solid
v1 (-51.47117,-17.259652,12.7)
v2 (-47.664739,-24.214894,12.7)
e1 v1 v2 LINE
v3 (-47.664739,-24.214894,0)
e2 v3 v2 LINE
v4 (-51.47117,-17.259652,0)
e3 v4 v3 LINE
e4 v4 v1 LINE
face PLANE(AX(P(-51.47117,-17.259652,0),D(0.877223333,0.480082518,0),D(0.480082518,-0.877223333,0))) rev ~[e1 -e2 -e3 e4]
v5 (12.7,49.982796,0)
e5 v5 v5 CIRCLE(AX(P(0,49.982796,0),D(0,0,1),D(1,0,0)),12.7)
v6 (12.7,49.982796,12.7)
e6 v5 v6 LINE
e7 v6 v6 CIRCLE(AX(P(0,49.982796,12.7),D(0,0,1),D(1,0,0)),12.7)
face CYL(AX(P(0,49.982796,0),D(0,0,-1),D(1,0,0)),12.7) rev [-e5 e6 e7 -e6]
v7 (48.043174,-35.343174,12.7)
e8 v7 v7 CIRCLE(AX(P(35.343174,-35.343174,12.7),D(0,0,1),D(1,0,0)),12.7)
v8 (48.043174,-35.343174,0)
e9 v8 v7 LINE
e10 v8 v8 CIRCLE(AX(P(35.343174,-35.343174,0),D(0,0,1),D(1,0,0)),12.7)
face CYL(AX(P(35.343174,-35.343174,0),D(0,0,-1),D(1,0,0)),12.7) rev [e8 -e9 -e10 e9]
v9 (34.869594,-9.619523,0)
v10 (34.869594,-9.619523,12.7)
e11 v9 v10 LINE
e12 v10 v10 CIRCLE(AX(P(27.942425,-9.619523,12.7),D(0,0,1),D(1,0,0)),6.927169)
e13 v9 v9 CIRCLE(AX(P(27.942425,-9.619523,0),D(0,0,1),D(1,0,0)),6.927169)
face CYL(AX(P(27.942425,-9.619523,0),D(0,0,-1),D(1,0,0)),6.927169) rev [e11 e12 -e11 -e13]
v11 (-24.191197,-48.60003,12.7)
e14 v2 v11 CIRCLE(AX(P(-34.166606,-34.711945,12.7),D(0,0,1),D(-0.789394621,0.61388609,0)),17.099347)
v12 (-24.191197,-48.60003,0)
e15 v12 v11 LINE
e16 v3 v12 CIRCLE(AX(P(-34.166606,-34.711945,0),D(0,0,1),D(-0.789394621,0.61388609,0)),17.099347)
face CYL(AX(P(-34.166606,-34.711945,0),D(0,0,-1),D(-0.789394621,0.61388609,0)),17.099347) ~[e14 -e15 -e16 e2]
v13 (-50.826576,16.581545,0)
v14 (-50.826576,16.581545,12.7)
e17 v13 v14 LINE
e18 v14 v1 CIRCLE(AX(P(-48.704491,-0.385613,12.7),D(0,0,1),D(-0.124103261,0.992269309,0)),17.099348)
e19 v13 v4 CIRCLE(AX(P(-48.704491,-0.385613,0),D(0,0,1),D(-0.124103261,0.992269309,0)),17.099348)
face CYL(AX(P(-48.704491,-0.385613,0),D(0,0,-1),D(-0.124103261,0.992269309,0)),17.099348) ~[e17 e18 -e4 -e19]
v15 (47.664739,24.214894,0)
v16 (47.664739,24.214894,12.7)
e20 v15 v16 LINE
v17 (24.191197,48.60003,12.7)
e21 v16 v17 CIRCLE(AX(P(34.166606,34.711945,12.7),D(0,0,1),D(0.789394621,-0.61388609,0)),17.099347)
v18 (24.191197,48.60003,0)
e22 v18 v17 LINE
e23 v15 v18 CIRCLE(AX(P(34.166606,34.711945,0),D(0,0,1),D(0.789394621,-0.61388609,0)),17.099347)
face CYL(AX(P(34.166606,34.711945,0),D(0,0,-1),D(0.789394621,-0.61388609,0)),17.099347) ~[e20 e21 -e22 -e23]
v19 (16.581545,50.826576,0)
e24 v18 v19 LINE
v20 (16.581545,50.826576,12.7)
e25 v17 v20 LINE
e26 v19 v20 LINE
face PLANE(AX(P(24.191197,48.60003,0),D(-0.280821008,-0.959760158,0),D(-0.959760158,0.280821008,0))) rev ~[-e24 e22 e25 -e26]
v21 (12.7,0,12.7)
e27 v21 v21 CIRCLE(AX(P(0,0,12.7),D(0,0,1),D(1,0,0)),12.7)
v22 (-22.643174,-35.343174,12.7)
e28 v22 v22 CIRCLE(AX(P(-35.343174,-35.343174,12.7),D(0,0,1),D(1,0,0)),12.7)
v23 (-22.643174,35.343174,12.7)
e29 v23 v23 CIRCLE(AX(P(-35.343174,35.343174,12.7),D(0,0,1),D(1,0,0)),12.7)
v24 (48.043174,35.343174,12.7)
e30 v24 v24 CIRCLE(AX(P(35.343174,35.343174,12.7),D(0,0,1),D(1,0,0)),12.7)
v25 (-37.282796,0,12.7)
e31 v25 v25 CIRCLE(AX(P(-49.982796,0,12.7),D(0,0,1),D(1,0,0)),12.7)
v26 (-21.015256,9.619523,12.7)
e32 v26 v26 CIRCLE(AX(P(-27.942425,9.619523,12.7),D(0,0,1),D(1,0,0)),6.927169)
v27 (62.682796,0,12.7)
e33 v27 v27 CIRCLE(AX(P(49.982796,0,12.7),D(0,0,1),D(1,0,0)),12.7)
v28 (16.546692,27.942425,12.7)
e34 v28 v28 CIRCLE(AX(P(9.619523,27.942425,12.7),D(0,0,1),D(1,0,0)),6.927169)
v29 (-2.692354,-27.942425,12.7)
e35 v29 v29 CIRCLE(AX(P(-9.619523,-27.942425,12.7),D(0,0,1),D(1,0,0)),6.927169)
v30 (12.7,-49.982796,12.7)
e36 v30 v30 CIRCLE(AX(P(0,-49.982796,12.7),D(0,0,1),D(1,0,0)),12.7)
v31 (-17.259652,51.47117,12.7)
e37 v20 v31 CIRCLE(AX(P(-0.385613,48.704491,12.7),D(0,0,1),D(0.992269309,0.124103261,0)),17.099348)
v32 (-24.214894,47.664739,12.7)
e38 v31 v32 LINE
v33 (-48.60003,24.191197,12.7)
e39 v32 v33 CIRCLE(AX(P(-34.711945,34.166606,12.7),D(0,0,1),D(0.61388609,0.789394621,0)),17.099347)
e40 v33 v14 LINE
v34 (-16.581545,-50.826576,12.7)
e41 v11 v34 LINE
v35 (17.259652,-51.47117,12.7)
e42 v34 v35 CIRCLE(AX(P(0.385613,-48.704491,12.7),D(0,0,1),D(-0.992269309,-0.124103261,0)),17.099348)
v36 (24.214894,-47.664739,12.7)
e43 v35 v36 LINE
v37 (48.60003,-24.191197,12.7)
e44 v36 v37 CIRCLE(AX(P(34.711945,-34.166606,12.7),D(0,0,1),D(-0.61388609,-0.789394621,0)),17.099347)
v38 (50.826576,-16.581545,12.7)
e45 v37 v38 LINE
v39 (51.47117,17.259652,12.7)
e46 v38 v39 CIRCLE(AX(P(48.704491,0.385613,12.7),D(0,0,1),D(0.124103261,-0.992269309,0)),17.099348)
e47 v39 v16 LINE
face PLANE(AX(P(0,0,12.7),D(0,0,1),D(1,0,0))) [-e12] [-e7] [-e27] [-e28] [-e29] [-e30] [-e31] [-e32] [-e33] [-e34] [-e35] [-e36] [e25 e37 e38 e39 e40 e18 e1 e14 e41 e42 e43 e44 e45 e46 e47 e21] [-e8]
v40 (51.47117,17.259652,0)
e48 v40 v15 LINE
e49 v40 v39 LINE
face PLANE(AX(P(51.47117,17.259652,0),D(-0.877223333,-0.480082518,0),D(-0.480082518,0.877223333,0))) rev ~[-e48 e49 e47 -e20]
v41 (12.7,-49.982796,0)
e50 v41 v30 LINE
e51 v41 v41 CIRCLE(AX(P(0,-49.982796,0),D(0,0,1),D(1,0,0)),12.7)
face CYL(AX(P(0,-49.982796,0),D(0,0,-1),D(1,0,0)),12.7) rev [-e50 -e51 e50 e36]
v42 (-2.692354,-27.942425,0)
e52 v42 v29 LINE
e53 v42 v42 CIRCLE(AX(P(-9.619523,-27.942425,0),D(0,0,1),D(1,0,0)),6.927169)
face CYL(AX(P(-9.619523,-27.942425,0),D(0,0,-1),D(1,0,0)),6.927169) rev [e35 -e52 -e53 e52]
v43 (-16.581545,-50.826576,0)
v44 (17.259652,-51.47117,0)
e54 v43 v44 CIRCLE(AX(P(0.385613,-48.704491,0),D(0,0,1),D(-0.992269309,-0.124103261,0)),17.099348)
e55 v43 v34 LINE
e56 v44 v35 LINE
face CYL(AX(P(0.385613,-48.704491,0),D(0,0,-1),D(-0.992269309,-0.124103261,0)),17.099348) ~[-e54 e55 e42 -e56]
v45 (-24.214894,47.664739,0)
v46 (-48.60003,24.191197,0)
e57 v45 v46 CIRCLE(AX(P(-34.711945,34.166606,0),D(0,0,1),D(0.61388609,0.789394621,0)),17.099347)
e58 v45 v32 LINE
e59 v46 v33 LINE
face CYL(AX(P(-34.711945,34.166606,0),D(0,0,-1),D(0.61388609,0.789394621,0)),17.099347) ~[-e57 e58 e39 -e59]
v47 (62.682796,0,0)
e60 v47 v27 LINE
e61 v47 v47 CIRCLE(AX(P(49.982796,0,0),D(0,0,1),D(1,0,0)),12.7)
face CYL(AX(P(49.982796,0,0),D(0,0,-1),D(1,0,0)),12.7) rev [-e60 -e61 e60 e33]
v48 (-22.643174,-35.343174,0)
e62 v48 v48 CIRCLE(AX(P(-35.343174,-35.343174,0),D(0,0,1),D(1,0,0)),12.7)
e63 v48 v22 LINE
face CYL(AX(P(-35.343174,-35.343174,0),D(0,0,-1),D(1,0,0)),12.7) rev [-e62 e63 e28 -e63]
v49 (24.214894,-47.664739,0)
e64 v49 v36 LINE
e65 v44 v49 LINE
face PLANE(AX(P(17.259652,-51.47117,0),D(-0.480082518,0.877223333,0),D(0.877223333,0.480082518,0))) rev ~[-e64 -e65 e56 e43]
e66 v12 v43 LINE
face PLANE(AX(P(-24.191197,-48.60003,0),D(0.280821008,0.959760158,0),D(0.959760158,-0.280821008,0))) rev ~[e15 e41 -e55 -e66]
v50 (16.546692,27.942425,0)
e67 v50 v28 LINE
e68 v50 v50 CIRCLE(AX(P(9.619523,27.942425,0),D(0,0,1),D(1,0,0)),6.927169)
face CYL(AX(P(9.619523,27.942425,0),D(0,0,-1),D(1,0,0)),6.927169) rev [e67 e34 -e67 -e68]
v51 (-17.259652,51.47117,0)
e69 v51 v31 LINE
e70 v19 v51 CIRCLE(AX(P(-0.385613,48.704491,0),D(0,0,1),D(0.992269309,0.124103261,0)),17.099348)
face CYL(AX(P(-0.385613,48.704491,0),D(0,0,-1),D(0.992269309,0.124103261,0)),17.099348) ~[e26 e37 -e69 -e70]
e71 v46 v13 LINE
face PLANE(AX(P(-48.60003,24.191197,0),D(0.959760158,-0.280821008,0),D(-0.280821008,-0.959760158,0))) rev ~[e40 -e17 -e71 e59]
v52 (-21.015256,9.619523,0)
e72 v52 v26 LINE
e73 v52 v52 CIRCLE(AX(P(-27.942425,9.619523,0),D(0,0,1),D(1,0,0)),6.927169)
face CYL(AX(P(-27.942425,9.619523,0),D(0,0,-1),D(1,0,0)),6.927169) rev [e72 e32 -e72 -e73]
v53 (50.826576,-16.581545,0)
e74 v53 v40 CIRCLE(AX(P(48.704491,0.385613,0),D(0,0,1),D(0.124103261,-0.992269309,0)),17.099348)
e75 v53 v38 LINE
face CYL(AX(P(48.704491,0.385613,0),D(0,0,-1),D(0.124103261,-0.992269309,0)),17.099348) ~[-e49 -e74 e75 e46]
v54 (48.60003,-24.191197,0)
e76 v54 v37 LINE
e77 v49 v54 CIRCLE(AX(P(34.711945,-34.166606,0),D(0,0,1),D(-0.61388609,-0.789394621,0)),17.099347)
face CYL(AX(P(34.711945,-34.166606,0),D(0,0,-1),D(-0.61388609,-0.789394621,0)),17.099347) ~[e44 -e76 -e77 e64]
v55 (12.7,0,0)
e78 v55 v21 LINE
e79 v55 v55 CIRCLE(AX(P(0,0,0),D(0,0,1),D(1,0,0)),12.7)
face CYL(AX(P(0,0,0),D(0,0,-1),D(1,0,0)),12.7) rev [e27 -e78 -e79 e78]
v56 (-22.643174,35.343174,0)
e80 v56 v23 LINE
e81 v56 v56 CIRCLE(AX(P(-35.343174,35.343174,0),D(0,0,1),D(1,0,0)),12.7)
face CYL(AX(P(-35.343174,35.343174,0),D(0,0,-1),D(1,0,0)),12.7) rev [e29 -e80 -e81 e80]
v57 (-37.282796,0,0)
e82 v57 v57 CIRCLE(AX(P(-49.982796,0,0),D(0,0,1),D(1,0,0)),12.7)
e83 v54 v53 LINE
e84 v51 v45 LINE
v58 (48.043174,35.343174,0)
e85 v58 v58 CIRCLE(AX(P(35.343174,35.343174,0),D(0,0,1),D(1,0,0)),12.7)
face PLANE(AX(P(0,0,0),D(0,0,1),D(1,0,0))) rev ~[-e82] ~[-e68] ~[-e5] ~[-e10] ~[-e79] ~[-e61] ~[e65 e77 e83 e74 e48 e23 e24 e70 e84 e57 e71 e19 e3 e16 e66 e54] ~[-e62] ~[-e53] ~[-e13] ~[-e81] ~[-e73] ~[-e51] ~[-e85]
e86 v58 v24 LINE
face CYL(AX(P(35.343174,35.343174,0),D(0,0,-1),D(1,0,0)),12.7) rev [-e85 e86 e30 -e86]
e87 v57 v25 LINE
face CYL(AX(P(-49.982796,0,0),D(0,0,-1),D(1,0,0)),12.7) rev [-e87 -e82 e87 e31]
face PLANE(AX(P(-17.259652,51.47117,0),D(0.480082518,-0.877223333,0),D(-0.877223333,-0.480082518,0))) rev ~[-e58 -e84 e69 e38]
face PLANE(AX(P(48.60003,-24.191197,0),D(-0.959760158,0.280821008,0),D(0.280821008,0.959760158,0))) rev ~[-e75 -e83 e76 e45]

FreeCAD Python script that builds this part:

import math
import FreeCAD as App
import Part
import Sketcher

V = App.Vector
Q = App.Units.Quantity

doc = App.newDocument("Part")
body = doc.addObject("PartDesign::Body", "Body")

sketch1 = doc.addObject("Sketcher::SketchObject", "Sketch")
body.addObject(sketch1)
sketch1.AttachmentSupport = (doc.XY_Plane, [""])
sketch1.MapMode = "FlatFace"
sketch1.addGeometry([
    Part.LineSegment(V(24, 49, 0), V(17, 51, 0)),
    Part.ArcOfCircle(Part.Circle(V(0, 49, 0), V(0, 0, 1), 17), math.radians(7), math.radians(171)),
    Part.LineSegment(V(-17, 51, 0), V(-24, 48, 0)),
    Part.ArcOfCircle(Part.Circle(V(-35, 34, 0), V(0, 0, 1), 17), math.radians(52), math.radians(216)),
    Part.LineSegment(V(-49, 24, 0), V(-51, 17, 0)),
    Part.ArcOfCircle(Part.Circle(V(-49, 0, 0), V(0, 0, 1), 17), math.radians(97), math.radians(261)),
    Part.LineSegment(V(-51, -17, 0), V(-48, -24, 0)),
    Part.ArcOfCircle(Part.Circle(V(-34, -35, 0), V(0, 0, 1), 17), math.radians(142), math.radians(306)),
    Part.LineSegment(V(-24, -49, 0), V(-17, -51, 0)),
    Part.ArcOfCircle(Part.Circle(V(0, -49, 0), V(0, 0, 1), 17), math.radians(-173), math.radians(-9)),
    Part.LineSegment(V(17, -51, 0), V(24, -48, 0)),
    Part.ArcOfCircle(Part.Circle(V(35, -34, 0), V(0, 0, 1), 17), math.radians(-128), math.radians(36)),
    Part.LineSegment(V(49, -24, 0), V(51, -17, 0)),
    Part.ArcOfCircle(Part.Circle(V(49, 0, 0), V(0, 0, 1), 17), math.radians(-83), math.radians(81)),
    Part.LineSegment(V(51, 17, 0), V(48, 24, 0)),
    Part.ArcOfCircle(Part.Circle(V(34, 35, 0), V(0, 0, 1), 17), math.radians(-38), math.radians(126)),
    Part.Circle(V(-35, -35, 0), V(0, 0, 1), 13),
    Part.Circle(V(0, -50, 0), V(0, 0, 1), 13),
    Part.Circle(V(-50, 0, 0), V(0, 0, 1), 13),
    Part.Circle(V(-10, -28, 0), V(0, 0, 1), 7),
    Part.Circle(V(0, 0, 0), V(0, 0, 1), 13),
    Part.Circle(V(35, -35, 0), V(0, 0, 1), 13),
    Part.Circle(V(28, -10, 0), V(0, 0, 1), 7),
    Part.Circle(V(50, 0, 0), V(0, 0, 1), 13),
    Part.Circle(V(-28, 10, 0), V(0, 0, 1), 7),
    Part.Circle(V(-35, 35, 0), V(0, 0, 1), 13),
    Part.Circle(V(0, 50, 0), V(0, 0, 1), 13),
    Part.Circle(V(10, 28, 0), V(0, 0, 1), 7),
    Part.Circle(V(35, 35, 0), V(0, 0, 1), 13),
], False)
sketch1.addConstraint([
    Sketcher.Constraint("Coincident", 0, 2, 1, 1),
    Sketcher.Constraint("Coincident", 1, 2, 2, 1),
    Sketcher.Constraint("Coincident", 2, 2, 3, 1),
    Sketcher.Constraint("Coincident", 3, 2, 4, 1),
    Sketcher.Constraint("Coincident", 4, 2, 5, 1),
    Sketcher.Constraint("Coincident", 5, 2, 6, 1),
    Sketcher.Constraint("Coincident", 6, 2, 7, 1),
    Sketcher.Constraint("Coincident", 7, 2, 8, 1),
    Sketcher.Constraint("Coincident", 8, 2, 9, 1),
    Sketcher.Constraint("Coincident", 9, 2, 10, 1),
    Sketcher.Constraint("Coincident", 10, 2, 11, 1),
    Sketcher.Constraint("Coincident", 11, 2, 12, 1),
    Sketcher.Constraint("Coincident", 12, 2, 13, 1),
    Sketcher.Constraint("Coincident", 13, 2, 14, 1),
    Sketcher.Constraint("Coincident", 14, 2, 15, 1),
    Sketcher.Constraint("Coincident", 15, 2, 0, 1),
    Sketcher.Constraint("Coincident", 20, 3, -1, 1),
    Sketcher.Constraint("Equal", 1, 3),
    Sketcher.Constraint("Equal", 3, 5),
    Sketcher.Constraint("Equal", 5, 7),
    Sketcher.Constraint("Equal", 7, 9),
    Sketcher.Constraint("Equal", 9, 11),
    Sketcher.Constraint("Equal", 11, 13),
    Sketcher.Constraint("Equal", 13, 15),
    Sketcher.Constraint("Equal", 16, 17),
    Sketcher.Constraint("Equal", 17, 18),
    Sketcher.Constraint("Equal", 18, 20),
    Sketcher.Constraint("Equal", 20, 21),
    Sketcher.Constraint("Equal", 19, 22),
    Sketcher.Constraint("Equal", 21, 23),
    Sketcher.Constraint("Equal", 22, 24),
    Sketcher.Constraint("Equal", 23, 25),
    Sketcher.Constraint("Equal", 25, 26),
    Sketcher.Constraint("Equal", 24, 27),
    Sketcher.Constraint("Equal", 26, 28),
    Sketcher.Constraint("Symmetric", 1, 3, 9, 3, -1, 1),
    Sketcher.Constraint("Symmetric", 3, 3, 11, 3, -1, 1),
    Sketcher.Constraint("Symmetric", 5, 3, 13, 3, -1, 1),
    Sketcher.Constraint("Symmetric", 7, 3, 15, 3, -1, 1),
    Sketcher.Constraint("Symmetric", 18, 3, 23, 3, -1, 1),
    Sketcher.Constraint("Symmetric", 22, 3, 24, 3, -1, 1),
    Sketcher.Constraint("Symmetric", 21, 3, 25, 3, -1, 1),
    Sketcher.Constraint("Symmetric", 17, 3, 26, 3, -1, 1),
    Sketcher.Constraint("Symmetric", 19, 3, 27, 3, -1, 1),
    Sketcher.Constraint("Symmetric", 16, 3, 28, 3, -1, 1),
    Sketcher.Constraint("Symmetric", 16, 3, 21, 3, -2),
    Sketcher.Constraint("PointOnObject", 17, 3, -2),
    Sketcher.Constraint("PointOnObject", 18, 3, -1),
    Sketcher.Constraint("Perpendicular", 0, 4),
    Sketcher.Constraint("Perpendicular", 2, 6),
    Sketcher.Constraint("Perpendicular", 4, 8),
    Sketcher.Constraint("Perpendicular", 6, 10),
    Sketcher.Constraint("Perpendicular", 8, 12),
    Sketcher.Constraint("Perpendicular", 10, 14),
    Sketcher.Constraint("Equal", 0, 2),
    Sketcher.Constraint("Equal", 2, 4),
    Sketcher.Constraint("Equal", 4, 6),
    Sketcher.Constraint("Equal", 6, 8),
    Sketcher.Constraint("Equal", 8, 10),
    Sketcher.Constraint("Equal", 10, 12),
    Sketcher.Constraint("Equal", 12, 14),
    Sketcher.Constraint("Diameter", 16, Q("1 in")),
    Sketcher.Constraint("Diameter", 19, Q("13.854338 mm")),
    Sketcher.Constraint("Radius", 1, Q("17.099348 mm")),
    Sketcher.Constraint("Distance", 0, Q("7.928702 mm")),
    Sketcher.Constraint("DistanceY", 19, 3, 22, 3, Q("18.322902 mm")),
    Sketcher.Constraint("DistanceX", 24, 3, 19, 3, Q("18.322902 mm")),
    Sketcher.Constraint("DistanceY", -1, 1, 1, 3, Q("48.704491 mm")),
    Sketcher.Constraint("DistanceX", 5, 3, -1, 1, Q("48.704491 mm")),
    Sketcher.Constraint("DistanceX", 1, 2, -1, 1, Q("17.259652 mm")),
    Sketcher.Constraint("DistanceY", -1, 1, 1, 2, Q("51.47117 mm")),
    Sketcher.Constraint("DistanceY", -1, 1, 2, 2, Q("47.664739 mm")),
    Sketcher.Constraint("DistanceX", 3, 2, -1, 1, Q("48.60003 mm")),
    Sketcher.Constraint("DistanceX", 5, 2, -1, 1, Q("51.47117 mm")),
    Sketcher.Constraint("DistanceY", 5, 2, -1, 1, Q("17.259652 mm")),
    Sketcher.Constraint("DistanceY", 7, 2, -1, 1, Q("48.60003 mm")),
    Sketcher.Constraint("DistanceY", 5, 3, 3, 3, Q("34.552219 mm")),
    Sketcher.Constraint("DistanceY", 16, 3, 7, 3, Q("0.631229 mm")),
    Sketcher.Constraint("DistanceX", 16, 3, 3, 3, Q("0.631229 mm")),
    Sketcher.Constraint("DistanceY", 17, 3, 7, 3, Q("15.270851 mm")),
    Sketcher.Constraint("DistanceX", 18, 3, 3, 3, Q("15.270851 mm")),
    Sketcher.Constraint("DistanceY", 17, 3, 19, 3, Q("22.040371 mm")),
    Sketcher.Constraint("DistanceX", 16, 3, 19, 3, Q("25.723651 mm")),
])
pad1 = doc.addObject("PartDesign::Pad", "Pad")
body.addObject(pad1)
pad1.Profile = sketch1
pad1.Length = Q("0.5 in")

doc.recompute()
